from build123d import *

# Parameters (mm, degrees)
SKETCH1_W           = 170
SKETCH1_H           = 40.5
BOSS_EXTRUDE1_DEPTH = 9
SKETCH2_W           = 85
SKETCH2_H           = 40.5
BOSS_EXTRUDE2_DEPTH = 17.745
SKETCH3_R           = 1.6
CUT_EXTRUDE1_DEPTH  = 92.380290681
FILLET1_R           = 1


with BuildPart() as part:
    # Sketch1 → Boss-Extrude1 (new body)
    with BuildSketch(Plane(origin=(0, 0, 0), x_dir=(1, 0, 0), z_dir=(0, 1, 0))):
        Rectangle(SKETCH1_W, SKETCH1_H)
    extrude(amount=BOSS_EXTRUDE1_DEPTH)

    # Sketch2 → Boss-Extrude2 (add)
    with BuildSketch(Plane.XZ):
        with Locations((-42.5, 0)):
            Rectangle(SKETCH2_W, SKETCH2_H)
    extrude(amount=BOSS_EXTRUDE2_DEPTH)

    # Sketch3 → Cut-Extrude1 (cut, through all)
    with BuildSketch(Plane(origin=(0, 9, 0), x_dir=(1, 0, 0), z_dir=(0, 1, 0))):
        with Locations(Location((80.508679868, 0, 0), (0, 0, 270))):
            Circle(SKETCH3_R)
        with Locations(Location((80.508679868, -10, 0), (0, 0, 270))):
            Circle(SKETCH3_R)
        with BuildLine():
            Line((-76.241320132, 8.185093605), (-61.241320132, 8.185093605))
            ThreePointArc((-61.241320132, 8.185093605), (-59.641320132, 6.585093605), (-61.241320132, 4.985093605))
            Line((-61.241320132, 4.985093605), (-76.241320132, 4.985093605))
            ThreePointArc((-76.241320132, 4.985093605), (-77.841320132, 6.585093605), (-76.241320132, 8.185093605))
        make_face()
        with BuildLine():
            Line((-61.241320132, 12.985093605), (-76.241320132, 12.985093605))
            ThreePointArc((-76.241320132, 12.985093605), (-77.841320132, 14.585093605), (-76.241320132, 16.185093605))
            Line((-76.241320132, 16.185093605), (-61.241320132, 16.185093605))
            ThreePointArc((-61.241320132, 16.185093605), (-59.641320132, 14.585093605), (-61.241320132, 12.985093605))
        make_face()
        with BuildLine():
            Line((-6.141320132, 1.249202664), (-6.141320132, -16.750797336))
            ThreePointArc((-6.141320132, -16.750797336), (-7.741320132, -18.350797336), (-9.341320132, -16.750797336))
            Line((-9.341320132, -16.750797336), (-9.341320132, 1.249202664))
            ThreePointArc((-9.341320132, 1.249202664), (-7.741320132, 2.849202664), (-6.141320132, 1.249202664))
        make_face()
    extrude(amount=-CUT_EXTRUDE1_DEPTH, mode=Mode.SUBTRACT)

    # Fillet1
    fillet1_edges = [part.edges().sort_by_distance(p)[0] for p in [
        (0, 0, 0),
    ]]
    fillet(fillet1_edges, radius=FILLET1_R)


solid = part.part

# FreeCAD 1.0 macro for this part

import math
import FreeCAD as App
import Part
import Sketcher
from FreeCAD import Vector


def edges_at(feature, points):
    """Names of the edges that pass closest to the given points."""
    edges = feature.Shape.Edges
    near = lambda p: min(range(len(edges)), key=lambda i: edges[i].distToShape(Part.Vertex(*p))[0])
    return sorted({f"Edge{near(p) + 1}" for p in points})


def add_polygon(sketch, points):
    """Adds a closed chain of lines whose ends are joined by coincident constraints."""
    first, n = sketch.GeometryCount, len(points)
    for a, b in zip(points, points[1:] + points[:1]):
        sketch.addGeometry(Part.LineSegment(App.Vector(*a, 0), App.Vector(*b, 0)), False)
    for i in range(n):
        sketch.addConstraint(Sketcher.Constraint("Coincident", first + i, 2, first + (i + 1) % n, 1))

doc = App.newDocument("Part")
body = doc.addObject("PartDesign::Body", "Body")

# Sketch on XZ plane
sketch1 = doc.addObject("Sketcher::SketchObject", "Sketch")
body.addObject(sketch1)
sketch1.AttachmentSupport = (doc.XZ_Plane, [""])
sketch1.MapMode = "FlatFace"
add_polygon(sketch1, [(-85, -20.25), (-85, 20.25), (85, 20.25), (85, -20.25)])  # lines 0-3
sketch1.addConstraint(Sketcher.Constraint("Vertical", 0))
sketch1.addConstraint(Sketcher.Constraint("Horizontal", 1))
sketch1.addConstraint(Sketcher.Constraint("Vertical", 2))
sketch1.addConstraint(Sketcher.Constraint("Horizontal", 3))
sketch1.addConstraint(Sketcher.Constraint("Symmetric", 0, 2, 2, 2, -1, 1))
sketch1.addConstraint(Sketcher.Constraint("DistanceX", 1, 1, 1, 2, 170.0))
sketch1.addConstraint(Sketcher.Constraint("DistanceY", 0, 1, 0, 2, 40.5))
pad1 = doc.addObject("PartDesign::Pad", "Pad")
body.addObject(pad1)
pad1.Profile = sketch1
pad1.Length = 9
pad1.Reversed = True

# Sketch on XZ plane
sketch2 = doc.addObject("Sketcher::SketchObject", "Sketch001")
body.addObject(sketch2)
sketch2.AttachmentSupport = (doc.XZ_Plane, [""])
sketch2.MapMode = "FlatFace"
add_polygon(sketch2, [(-85, 20.25), (-85, -20.25), (0, -20.25), (0, 20.25)])  # lines 0-3
sketch2.addConstraint(Sketcher.Constraint("Vertical", 0))
sketch2.addConstraint(Sketcher.Constraint("Horizontal", 1))
sketch2.addConstraint(Sketcher.Constraint("Vertical", 2))
sketch2.addConstraint(Sketcher.Constraint("Horizontal", 3))
sketch2.addConstraint(Sketcher.Constraint("Symmetric", 1, 2, 2, 2, -1, 1))
sketch2.addConstraint(Sketcher.Constraint("DistanceX", 1, 1, 1, 2, 85.0))
sketch2.addConstraint(Sketcher.Constraint("DistanceY", 0, 2, 0, 1, 40.5))
pad2 = doc.addObject("PartDesign::Pad", "Pad001")
body.addObject(pad2)
pad2.Profile = sketch2
pad2.Length = 17.745

# Sketch on XZ plane
sketch3 = doc.addObject("Sketcher::SketchObject", "Sketch002")
body.addObject(sketch3)
sketch3.AttachmentSupport = (doc.XZ_Plane, [""])
sketch3.MapMode = "FlatFace"
sketch3.AttachmentOffset = App.Placement(Vector(0, 0, -9), App.Rotation())
sketch3.addGeometry(Part.Circle(Vector(80.50868, 0, 0), Vector(0, 0, 1), 1.6), False)
sketch3.addGeometry(Part.Circle(Vector(80.50868, 10, 0), Vector(0, 0, 1), 1.6), False)
sketch3.addGeometry(Part.LineSegment(Vector(-61.24132, -8.185094, 0), Vector(-76.24132, -8.185094, 0)), False)
sketch3.addGeometry(Part.ArcOfCircle(Part.Circle(Vector(-76.24132, -6.585094, 0), Vector(0, 0, 1), 1.6), math.radians(90), math.radians(270)), False)
sketch3.addGeometry(Part.LineSegment(Vector(-76.24132, -4.985094, 0), Vector(-61.24132, -4.985094, 0)), False)
sketch3.addGeometry(Part.ArcOfCircle(Part.Circle(Vector(-61.24132, -6.585094, 0), Vector(0, 0, 1), 1.6), math.radians(-90), math.radians(90)), False)
sketch3.addGeometry(Part.LineSegment(Vector(-76.24132, -12.985094, 0), Vector(-61.24132, -12.985094, 0)), False)
sketch3.addGeometry(Part.ArcOfCircle(Part.Circle(Vector(-61.24132, -14.585094, 0), Vector(0, 0, 1), 1.6), math.radians(-90), math.radians(90)), False)
sketch3.addGeometry(Part.LineSegment(Vector(-61.24132, -16.185094, 0), Vector(-76.24132, -16.185094, 0)), False)
sketch3.addGeometry(Part.ArcOfCircle(Part.Circle(Vector(-76.24132, -14.585094, 0), Vector(0, 0, 1), 1.6), math.radians(90), math.radians(270)), False)
sketch3.addGeometry(Part.LineSegment(Vector(-6.14132, 16.750797, 0), Vector(-6.14132, -1.249203, 0)), False)
sketch3.addGeometry(Part.ArcOfCircle(Part.Circle(Vector(-7.74132, -1.249203, 0), Vector(0, 0, 1), 1.6), math.radians(180), math.radians(360)), False)
sketch3.addGeometry(Part.LineSegment(Vector(-9.34132, -1.249203, 0), Vector(-9.34132, 16.750797, 0)), False)
sketch3.addGeometry(Part.ArcOfCircle(Part.Circle(Vector(-7.74132, 16.750797, 0), Vector(0, 0, 1), 1.6), math.radians(0), math.radians(180)), False)
sketch3.addConstraint(Sketcher.Constraint("Tangent", 2, 2, 3, 2))
sketch3.addConstraint(Sketcher.Constraint("Tangent", 3, 1, 4, 1))
sketch3.addConstraint(Sketcher.Constraint("Tangent", 4, 2, 5, 2))
sketch3.addConstraint(Sketcher.Constraint("Tangent", 5, 1, 2, 1))
sketch3.addConstraint(Sketcher.Constraint("Tangent", 6, 2, 7, 2))
sketch3.addConstraint(Sketcher.Constraint("Tangent", 7, 1, 8, 1))
sketch3.addConstraint(Sketcher.Constraint("Tangent", 8, 2, 9, 2))
sketch3.addConstraint(Sketcher.Constraint("Tangent", 9, 1, 6, 1))
sketch3.addConstraint(Sketcher.Constraint("Tangent", 10, 2, 11, 2))
sketch3.addConstraint(Sketcher.Constraint("Tangent", 11, 1, 12, 1))
sketch3.addConstraint(Sketcher.Constraint("Tangent", 12, 2, 13, 2))
sketch3.addConstraint(Sketcher.Constraint("Tangent", 13, 1, 10, 1))
sketch3.addConstraint(Sketcher.Constraint("Horizontal", 2))
sketch3.addConstraint(Sketcher.Constraint("Horizontal", 4))
sketch3.addConstraint(Sketcher.Constraint("Horizontal", 6))
sketch3.addConstraint(Sketcher.Constraint("Horizontal", 8))
sketch3.addConstraint(Sketcher.Constraint("Vertical", 10))
sketch3.addConstraint(Sketcher.Constraint("Vertical", 12))
sketch3.addConstraint(Sketcher.Constraint("Equal", 0, 1))
sketch3.addConstraint(Sketcher.Constraint("Equal", 1, 3))
sketch3.addConstraint(Sketcher.Constraint("Equal", 5, 7))
sketch3.addConstraint(Sketcher.Constraint("Equal", 9, 11))
sketch3.addConstraint(Sketcher.Constraint("PointOnObject", 0, 3, -1))
sketch3.addConstraint(Sketcher.Constraint("Vertical", 0, 3, 1, 3))
sketch3.addConstraint(Sketcher.Constraint("Vertical", 5, 3, 7, 3))
sketch3.addConstraint(Sketcher.Constraint("Vertical", 3, 3, 9, 3))
sketch3.addConstraint(Sketcher.Constraint("Diameter", 0, 3.2))
sketch3.addConstraint(Sketcher.Constraint("DistanceX", 2, 2, 2, 1, 15.0))
sketch3.addConstraint(Sketcher.Constraint("DistanceY", 10, 2, 10, 1, 18.0))
sketch3.addConstraint(Sketcher.Constraint("DistanceY", -1, 1, 1, 3, 10.0))
sketch3.addConstraint(Sketcher.Constraint("DistanceY", 7, 3, 5, 3, 8.0))
sketch3.addConstraint(Sketcher.Constraint("DistanceX", 5, 3, 11, 3, 53.5))
sketch3.addConstraint(Sketcher.Constraint("DistanceX", 3, 3, 0, 3, 156.75))
sketch3.addConstraint(Sketcher.Constraint("DistanceX", -1, 1, 0, 3, 80.50868))
sketch3.addConstraint(Sketcher.Constraint("DistanceY", 5, 3, 11, 3, 5.335891))
sketch3.addConstraint(Sketcher.Constraint("DistanceY", 3, 3, -1, 1, 6.585094))
pocket1 = doc.addObject("PartDesign::Pocket", "Pocket")
body.addObject(pocket1)
pocket1.Profile = sketch3
pocket1.Type = "ThroughAll"
pocket1.Reversed = True
doc.recompute()

fillet = doc.addObject("PartDesign::Fillet", "Fillet")
body.addObject(fillet)
fillet.Base = (pocket1, edges_at(pocket1, [(0, 0, 0)]))
fillet.Radius = 1

doc.recompute()
